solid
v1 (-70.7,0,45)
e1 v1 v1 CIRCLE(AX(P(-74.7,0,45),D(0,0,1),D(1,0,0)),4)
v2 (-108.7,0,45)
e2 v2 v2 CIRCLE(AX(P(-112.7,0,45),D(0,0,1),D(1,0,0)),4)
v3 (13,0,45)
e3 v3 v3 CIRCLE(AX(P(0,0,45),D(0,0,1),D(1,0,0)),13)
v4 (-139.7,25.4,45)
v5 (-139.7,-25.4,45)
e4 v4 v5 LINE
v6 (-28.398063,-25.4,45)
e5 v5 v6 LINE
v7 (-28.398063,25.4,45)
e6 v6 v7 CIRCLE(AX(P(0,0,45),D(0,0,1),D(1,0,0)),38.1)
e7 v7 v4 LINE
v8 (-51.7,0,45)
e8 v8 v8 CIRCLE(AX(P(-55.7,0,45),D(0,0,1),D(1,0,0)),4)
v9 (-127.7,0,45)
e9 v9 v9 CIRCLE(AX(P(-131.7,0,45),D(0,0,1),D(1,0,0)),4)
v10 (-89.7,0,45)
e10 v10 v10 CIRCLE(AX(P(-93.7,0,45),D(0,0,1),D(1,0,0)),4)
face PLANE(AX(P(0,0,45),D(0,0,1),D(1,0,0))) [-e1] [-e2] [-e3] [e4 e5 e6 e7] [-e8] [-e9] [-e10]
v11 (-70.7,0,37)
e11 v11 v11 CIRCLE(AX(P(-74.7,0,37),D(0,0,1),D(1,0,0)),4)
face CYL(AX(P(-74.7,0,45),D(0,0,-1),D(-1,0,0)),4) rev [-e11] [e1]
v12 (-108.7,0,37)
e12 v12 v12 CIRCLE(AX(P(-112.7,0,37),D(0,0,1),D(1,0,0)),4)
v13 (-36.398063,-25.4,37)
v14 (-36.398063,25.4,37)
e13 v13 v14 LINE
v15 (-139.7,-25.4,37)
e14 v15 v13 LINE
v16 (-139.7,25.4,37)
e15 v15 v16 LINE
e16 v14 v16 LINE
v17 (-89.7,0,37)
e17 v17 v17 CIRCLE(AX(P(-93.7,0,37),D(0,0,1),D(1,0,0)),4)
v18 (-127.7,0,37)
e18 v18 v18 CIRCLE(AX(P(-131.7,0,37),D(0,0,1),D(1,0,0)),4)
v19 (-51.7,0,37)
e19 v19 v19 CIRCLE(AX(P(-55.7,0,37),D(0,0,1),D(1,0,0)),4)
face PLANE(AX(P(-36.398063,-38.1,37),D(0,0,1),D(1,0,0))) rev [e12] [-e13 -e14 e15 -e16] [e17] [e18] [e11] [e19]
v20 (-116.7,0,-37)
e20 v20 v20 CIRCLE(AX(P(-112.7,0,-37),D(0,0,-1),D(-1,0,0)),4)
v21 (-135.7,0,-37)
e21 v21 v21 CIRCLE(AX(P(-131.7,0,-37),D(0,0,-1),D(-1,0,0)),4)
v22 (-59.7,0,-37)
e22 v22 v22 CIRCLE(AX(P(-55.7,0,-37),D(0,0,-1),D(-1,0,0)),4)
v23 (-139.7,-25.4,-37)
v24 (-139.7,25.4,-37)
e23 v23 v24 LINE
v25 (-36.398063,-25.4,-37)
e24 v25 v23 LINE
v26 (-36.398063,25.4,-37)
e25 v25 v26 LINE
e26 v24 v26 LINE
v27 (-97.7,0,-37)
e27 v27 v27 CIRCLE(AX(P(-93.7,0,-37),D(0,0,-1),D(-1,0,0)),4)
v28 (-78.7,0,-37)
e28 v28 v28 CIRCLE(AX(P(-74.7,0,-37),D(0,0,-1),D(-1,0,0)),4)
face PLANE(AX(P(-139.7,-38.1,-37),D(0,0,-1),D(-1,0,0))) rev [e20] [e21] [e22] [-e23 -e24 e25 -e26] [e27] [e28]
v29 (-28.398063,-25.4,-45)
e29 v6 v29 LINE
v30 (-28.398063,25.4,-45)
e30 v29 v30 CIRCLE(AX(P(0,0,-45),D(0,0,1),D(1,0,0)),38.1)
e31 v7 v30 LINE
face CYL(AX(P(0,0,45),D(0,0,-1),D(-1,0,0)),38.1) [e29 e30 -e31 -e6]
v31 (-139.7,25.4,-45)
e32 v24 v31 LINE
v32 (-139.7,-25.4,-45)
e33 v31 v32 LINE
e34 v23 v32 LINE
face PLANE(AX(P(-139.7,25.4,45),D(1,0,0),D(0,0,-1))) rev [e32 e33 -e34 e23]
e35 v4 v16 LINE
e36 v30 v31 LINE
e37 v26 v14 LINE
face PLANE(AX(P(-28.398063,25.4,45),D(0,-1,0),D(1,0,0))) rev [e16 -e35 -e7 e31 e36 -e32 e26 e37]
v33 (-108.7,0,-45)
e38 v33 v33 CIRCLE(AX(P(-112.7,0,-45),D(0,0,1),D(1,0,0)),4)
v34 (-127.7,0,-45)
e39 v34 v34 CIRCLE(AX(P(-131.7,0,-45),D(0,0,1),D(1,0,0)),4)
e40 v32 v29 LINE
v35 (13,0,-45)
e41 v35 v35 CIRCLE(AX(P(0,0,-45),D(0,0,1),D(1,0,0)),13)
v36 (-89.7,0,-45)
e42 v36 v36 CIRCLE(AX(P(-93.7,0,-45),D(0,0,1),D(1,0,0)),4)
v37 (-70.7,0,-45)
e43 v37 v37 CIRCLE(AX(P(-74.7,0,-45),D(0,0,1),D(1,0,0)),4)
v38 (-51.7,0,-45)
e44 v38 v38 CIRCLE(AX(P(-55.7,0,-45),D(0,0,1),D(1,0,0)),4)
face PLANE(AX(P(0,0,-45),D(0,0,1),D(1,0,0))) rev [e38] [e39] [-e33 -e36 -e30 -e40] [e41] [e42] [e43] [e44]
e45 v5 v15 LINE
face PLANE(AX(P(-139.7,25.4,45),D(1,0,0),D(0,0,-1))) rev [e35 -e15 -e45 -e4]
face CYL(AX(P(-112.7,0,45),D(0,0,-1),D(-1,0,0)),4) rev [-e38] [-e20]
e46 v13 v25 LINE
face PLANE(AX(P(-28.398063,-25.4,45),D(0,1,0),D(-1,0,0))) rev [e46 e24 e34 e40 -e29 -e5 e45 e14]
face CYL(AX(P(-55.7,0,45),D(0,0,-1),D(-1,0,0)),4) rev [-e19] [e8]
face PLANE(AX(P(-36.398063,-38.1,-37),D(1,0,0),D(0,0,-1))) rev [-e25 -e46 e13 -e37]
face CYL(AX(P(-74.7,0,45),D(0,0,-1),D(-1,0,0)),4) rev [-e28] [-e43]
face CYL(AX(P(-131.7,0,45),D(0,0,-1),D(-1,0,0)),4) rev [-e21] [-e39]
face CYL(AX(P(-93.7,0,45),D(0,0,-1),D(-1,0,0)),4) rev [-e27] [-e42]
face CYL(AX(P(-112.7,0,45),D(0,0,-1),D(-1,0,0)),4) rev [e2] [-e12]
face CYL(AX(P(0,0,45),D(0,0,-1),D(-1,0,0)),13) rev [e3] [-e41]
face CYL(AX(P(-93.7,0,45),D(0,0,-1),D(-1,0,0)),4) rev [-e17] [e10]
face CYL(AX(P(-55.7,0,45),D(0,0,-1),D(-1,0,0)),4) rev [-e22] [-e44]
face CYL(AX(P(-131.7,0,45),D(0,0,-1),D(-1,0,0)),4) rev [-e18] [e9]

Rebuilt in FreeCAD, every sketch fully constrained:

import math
import FreeCAD as App
import Part
import Sketcher


def add_polygon(sketch, points):
    """Adds a closed chain of lines whose ends are joined by coincident constraints."""
    first, n = sketch.GeometryCount, len(points)
    for a, b in zip(points, points[1:] + points[:1]):
        sketch.addGeometry(Part.LineSegment(App.Vector(*a, 0), App.Vector(*b, 0)), False)
    for i in range(n):
        sketch.addConstraint(Sketcher.Constraint("Coincident", first + i, 2, first + (i + 1) % n, 1))

doc = App.newDocument("Part")
body = doc.addObject("PartDesign::Body", "Body")

sketch1 = doc.addObject("Sketcher::SketchObject", "Sketch")
body.addObject(sketch1)
sketch1.AttachmentSupport = (doc.XY_Plane, [""])
sketch1.MapMode = "FlatFace"
sketch1.addGeometry(Part.LineSegment(App.Vector(-28.4, 25.4, 0), App.Vector(-139.7, 25.4, 0)), False)
sketch1.addGeometry(Part.LineSegment(App.Vector(-139.7, 25.4, 0), App.Vector(-139.7, -25.4, 0)), False)
sketch1.addGeometry(Part.LineSegment(App.Vector(-139.7, -25.4, 0), App.Vector(-28.4, -25.4, 0)), False)
sketch1.addGeometry(Part.ArcOfCircle(Part.Circle(App.Vector(0, 0, 0), App.Vector(0, 0, 1), 38.1), math.radians(-138), math.radians(138)), False)
sketch1.addGeometry(Part.Circle(App.Vector(-131.7, 0, 0), App.Vector(0, 0, 1), 4), False)
sketch1.addGeometry(Part.Circle(App.Vector(-112.7, 0, 0), App.Vector(0, 0, 1), 4), False)
sketch1.addGeometry(Part.Circle(App.Vector(-93.7, 0, 0), App.Vector(0, 0, 1), 4), False)
sketch1.addGeometry(Part.Circle(App.Vector(-74.7, 0, 0), App.Vector(0, 0, 1), 4), False)
sketch1.addGeometry(Part.Circle(App.Vector(-55.7, 0, 0), App.Vector(0, 0, 1), 4), False)
sketch1.addGeometry(Part.Circle(App.Vector(0, 0, 0), App.Vector(0, 0, 1), 13), False)
sketch1.addConstraint(Sketcher.Constraint("Coincident", 0, 2, 1, 1))
sketch1.addConstraint(Sketcher.Constraint("Coincident", 1, 2, 2, 1))
sketch1.addConstraint(Sketcher.Constraint("Coincident", 2, 2, 3, 1))
sketch1.addConstraint(Sketcher.Constraint("Coincident", 3, 2, 0, 1))
sketch1.addConstraint(Sketcher.Constraint("Horizontal", 0))
sketch1.addConstraint(Sketcher.Constraint("Vertical", 1))
sketch1.addConstraint(Sketcher.Constraint("Horizontal", 2))
sketch1.addConstraint(Sketcher.Constraint("Coincident", 3, 3, -1, 1))
sketch1.addConstraint(Sketcher.Constraint("Coincident", 9, 3, -1, 1))
sketch1.addConstraint(Sketcher.Constraint("Equal", 4, 5))
sketch1.addConstraint(Sketcher.Constraint("Equal", 5, 6))
sketch1.addConstraint(Sketcher.Constraint("Equal", 6, 7))
sketch1.addConstraint(Sketcher.Constraint("Equal", 7, 8))
sketch1.addConstraint(Sketcher.Constraint("PointOnObject", 4, 3, -1))
sketch1.addConstraint(Sketcher.Constraint("PointOnObject", 5, 3, -1))
sketch1.addConstraint(Sketcher.Constraint("PointOnObject", 6, 3, -1))
sketch1.addConstraint(Sketcher.Constraint("PointOnObject", 7, 3, -1))
sketch1.addConstraint(Sketcher.Constraint("PointOnObject", 8, 3, -1))
sketch1.addConstraint(Sketcher.Constraint("Vertical", 2, 2, 3, 2))
sketch1.addConstraint(Sketcher.Constraint("Diameter", 4, 8.0))
sketch1.addConstraint(Sketcher.Constraint("Diameter", 9, 26.0))
sketch1.addConstraint(Sketcher.Constraint("Radius", 3, 38.1))
sketch1.addConstraint(Sketcher.Constraint("DistanceY", 1, 2, 1, 1, 50.8))
sketch1.addConstraint(Sketcher.Constraint("DistanceX", 4, 3, 5, 3, 19.0))
sketch1.addConstraint(Sketcher.Constraint("DistanceX", 5, 3, 6, 3, 19.0))
sketch1.addConstraint(Sketcher.Constraint("DistanceX", 6, 3, 7, 3, 19.0))
sketch1.addConstraint(Sketcher.Constraint("DistanceX", 7, 3, 8, 3, 19.0))
sketch1.addConstraint(Sketcher.Constraint("DistanceX", 0, 2, 4, 3, 8.0))
sketch1.addConstraint(Sketcher.Constraint("DistanceX", 4, 3, -1, 1, 131.7))
pad1 = doc.addObject("PartDesign::Pad", "Pad")
body.addObject(pad1)
pad1.Profile = sketch1
pad1.Length = 90
pad1.Midplane = True

sketch2 = doc.addObject("Sketcher::SketchObject", "Sketch001")
body.addObject(sketch2)
sketch2.AttachmentSupport = (doc.XZ_Plane, [""])
sketch2.MapMode = "FlatFace"
sketch2.AttachmentOffset = App.Placement(App.Vector(0, 0, -25.4), App.Rotation())
add_polygon(sketch2, [(-140, -37), (-140, 37), (-36, 37), (-36, -37)])
sketch2.addConstraint(Sketcher.Constraint("Vertical", 0))
sketch2.addConstraint(Sketcher.Constraint("Horizontal", 1))
sketch2.addConstraint(Sketcher.Constraint("Vertical", 2))
sketch2.addConstraint(Sketcher.Constraint("Horizontal", 3))
sketch2.addConstraint(Sketcher.Constraint("DistanceY", 0, 1, 0, 2, 74.0))
sketch2.addConstraint(Sketcher.Constraint("DistanceY", -1, 1, 0, 2, 37.0))
sketch2.addConstraint(Sketcher.Constraint("DistanceX", 0, 2, -1, 1, 139.7))
sketch2.addConstraint(Sketcher.Constraint("DistanceX", 1, 1, 1, 2, 103.301937))
pocket1 = doc.addObject("PartDesign::Pocket", "Pocket")
body.addObject(pocket1)
pocket1.Profile = sketch2
pocket1.Type = "ThroughAll"
pocket1.Midplane = True

doc.recompute()
